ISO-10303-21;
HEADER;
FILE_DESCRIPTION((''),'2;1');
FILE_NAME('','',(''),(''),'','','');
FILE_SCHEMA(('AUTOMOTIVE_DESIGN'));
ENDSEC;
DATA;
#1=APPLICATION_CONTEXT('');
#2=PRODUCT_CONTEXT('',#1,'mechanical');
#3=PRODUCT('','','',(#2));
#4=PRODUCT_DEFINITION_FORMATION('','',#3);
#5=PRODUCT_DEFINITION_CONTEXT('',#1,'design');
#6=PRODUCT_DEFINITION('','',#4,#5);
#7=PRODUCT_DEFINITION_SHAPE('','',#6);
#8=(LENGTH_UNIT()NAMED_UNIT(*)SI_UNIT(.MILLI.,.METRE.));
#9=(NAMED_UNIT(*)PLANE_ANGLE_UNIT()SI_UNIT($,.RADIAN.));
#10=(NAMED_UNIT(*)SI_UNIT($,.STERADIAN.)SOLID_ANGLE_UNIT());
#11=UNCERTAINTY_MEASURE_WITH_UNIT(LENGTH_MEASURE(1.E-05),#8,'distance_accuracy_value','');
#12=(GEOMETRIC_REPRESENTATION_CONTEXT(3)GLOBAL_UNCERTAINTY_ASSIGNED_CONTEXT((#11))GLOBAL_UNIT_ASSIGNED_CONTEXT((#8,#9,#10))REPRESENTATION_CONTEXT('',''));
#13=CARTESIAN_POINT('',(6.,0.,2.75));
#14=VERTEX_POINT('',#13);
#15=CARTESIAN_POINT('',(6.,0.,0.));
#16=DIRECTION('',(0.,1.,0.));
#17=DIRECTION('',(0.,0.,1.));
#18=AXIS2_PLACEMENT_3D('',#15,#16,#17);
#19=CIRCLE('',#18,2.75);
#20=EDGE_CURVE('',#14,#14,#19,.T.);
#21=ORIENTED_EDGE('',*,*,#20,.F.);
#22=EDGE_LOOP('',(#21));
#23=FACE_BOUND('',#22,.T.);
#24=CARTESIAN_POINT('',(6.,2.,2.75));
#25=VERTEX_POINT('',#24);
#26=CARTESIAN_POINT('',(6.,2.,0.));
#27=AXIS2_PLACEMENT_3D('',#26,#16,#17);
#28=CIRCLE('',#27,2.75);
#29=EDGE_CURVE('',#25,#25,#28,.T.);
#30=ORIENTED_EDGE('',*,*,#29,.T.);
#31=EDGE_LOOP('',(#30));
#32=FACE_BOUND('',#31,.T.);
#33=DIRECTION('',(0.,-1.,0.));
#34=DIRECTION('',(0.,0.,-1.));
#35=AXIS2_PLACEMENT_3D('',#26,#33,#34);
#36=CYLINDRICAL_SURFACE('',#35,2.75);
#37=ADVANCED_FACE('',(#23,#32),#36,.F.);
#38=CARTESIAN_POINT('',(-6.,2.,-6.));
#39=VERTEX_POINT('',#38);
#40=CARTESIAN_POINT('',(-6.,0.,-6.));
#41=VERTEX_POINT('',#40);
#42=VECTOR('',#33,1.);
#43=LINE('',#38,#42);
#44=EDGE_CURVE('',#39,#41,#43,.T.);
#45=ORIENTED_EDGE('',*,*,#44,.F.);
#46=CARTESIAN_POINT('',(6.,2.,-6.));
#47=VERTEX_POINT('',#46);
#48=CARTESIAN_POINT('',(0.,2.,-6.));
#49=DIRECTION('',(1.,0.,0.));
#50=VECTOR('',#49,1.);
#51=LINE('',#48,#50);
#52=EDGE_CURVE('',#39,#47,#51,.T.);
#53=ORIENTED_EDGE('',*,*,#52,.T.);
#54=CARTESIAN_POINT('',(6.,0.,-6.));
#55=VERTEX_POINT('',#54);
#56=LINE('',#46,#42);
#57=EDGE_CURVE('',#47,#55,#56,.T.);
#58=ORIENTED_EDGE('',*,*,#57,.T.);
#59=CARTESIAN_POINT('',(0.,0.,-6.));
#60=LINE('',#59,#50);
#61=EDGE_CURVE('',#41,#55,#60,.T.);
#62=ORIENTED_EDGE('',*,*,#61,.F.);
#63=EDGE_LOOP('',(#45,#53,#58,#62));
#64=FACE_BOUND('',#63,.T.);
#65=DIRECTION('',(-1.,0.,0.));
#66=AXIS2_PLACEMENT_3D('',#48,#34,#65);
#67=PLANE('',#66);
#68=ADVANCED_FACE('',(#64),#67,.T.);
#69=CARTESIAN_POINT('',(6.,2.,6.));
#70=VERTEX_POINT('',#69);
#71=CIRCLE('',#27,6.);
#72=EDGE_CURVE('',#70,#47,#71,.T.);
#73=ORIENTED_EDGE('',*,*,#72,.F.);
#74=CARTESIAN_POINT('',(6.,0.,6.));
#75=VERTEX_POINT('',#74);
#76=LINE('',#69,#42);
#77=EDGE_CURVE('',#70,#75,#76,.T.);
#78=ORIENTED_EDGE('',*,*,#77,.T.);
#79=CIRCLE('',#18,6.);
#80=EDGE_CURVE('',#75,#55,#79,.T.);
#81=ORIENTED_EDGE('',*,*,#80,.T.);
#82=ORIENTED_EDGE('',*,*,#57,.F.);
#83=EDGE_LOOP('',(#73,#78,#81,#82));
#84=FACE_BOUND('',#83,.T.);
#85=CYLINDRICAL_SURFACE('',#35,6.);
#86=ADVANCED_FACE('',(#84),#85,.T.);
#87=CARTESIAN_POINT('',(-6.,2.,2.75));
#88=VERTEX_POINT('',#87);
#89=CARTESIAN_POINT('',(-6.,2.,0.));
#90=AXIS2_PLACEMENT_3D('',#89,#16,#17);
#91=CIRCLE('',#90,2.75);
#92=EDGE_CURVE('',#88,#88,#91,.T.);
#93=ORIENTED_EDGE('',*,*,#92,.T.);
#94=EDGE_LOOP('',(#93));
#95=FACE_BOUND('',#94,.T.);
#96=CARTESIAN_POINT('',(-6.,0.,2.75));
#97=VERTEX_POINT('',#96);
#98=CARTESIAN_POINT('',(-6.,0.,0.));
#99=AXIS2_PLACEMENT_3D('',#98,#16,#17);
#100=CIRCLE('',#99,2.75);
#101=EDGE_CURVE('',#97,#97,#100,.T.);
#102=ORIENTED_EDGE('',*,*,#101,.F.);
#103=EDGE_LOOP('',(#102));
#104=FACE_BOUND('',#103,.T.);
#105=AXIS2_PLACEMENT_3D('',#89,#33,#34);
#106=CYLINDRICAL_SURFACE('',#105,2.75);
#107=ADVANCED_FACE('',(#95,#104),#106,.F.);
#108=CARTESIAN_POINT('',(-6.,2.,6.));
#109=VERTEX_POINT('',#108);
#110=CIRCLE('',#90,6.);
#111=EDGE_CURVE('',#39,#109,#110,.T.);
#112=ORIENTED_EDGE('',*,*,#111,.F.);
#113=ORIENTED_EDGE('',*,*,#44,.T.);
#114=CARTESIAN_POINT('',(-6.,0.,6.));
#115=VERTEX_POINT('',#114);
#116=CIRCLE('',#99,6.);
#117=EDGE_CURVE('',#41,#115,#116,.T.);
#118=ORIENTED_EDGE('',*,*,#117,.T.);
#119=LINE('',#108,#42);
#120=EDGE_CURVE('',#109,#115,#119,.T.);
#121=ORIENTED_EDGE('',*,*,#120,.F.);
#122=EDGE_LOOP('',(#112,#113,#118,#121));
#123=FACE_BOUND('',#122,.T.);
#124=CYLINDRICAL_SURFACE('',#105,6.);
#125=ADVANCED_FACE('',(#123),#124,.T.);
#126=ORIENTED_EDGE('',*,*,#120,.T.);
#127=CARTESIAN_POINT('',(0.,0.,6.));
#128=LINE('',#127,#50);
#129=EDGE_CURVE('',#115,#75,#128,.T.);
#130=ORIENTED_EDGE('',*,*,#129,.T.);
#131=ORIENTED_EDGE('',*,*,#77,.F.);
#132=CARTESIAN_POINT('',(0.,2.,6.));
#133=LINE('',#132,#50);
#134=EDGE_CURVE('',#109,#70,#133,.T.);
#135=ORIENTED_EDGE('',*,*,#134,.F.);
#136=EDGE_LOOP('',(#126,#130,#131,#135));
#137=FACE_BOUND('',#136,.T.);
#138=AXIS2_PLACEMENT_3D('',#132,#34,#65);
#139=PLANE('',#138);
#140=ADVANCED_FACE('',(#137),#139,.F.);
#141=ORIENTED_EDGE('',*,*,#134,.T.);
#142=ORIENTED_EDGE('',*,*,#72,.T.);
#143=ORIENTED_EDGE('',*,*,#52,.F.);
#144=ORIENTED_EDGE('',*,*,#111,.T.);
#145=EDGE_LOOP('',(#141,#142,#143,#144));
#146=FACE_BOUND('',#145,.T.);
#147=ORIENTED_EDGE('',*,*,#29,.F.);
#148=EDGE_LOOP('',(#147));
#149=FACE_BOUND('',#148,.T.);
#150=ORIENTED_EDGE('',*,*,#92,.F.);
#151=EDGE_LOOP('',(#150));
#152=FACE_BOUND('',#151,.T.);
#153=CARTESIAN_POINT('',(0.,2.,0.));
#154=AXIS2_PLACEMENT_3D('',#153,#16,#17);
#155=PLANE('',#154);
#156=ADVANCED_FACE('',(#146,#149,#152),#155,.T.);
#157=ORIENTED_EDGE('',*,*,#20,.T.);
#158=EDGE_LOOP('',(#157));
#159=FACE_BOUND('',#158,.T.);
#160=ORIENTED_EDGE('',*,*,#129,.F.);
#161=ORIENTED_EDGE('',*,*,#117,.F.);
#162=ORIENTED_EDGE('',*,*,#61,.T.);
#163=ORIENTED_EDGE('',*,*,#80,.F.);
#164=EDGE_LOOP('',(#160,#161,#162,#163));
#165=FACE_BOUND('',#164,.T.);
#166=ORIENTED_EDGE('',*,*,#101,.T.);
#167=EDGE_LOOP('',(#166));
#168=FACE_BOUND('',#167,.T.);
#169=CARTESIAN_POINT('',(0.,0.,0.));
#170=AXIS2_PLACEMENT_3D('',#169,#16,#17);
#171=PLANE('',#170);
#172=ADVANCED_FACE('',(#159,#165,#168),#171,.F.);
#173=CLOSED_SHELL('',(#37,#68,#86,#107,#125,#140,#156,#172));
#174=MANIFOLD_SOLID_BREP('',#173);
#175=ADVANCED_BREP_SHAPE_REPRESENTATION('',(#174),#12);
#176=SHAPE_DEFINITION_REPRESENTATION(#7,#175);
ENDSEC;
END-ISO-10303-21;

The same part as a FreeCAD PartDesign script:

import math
import FreeCAD as App
import Part
import Sketcher

V = App.Vector
Q = App.Units.Quantity

doc = App.newDocument("Part")
body = doc.addObject("PartDesign::Body", "Body")

sketch1 = body.newObject("Sketcher::SketchObject", "Sketch")
sketch1.AttachmentSupport = (doc.getObject("XZ_Plane"), [""])
sketch1.MapMode = "FlatFace"
sketch1.addGeometry([
    Part.LineSegment(V(6, -6, 0), V(-6, -6, 0)),
    Part.ArcOfCircle(Part.Circle(V(-6, 0, 0), V(0, 0, 1), 6), math.radians(90), math.radians(270)),
    Part.LineSegment(V(-6, 6, 0), V(6, 6, 0)),
    Part.ArcOfCircle(Part.Circle(V(6, 0, 0), V(0, 0, 1), 6), math.radians(-90), math.radians(90)),
    Part.Circle(V(-6, 0, 0), V(0, 0, 1), 2.75),
    Part.Circle(V(6, 0, 0), V(0, 0, 1), 2.75),
], False)
sketch1.addConstraint([
    Sketcher.Constraint("Tangent", 0, 2, 1, 2),
    Sketcher.Constraint("Tangent", 1, 1, 2, 1),
    Sketcher.Constraint("Tangent", 2, 2, 3, 2),
    Sketcher.Constraint("Tangent", 3, 1, 0, 1),
    Sketcher.Constraint("Horizontal", 0),
    Sketcher.Constraint("Horizontal", 2),
    Sketcher.Constraint("Coincident", 4, 3, 1, 3),
    Sketcher.Constraint("Coincident", 5, 3, 3, 3),
    Sketcher.Constraint("Equal", 4, 5),
    Sketcher.Constraint("Symmetric", 1, 3, 3, 3, -1, 1),
    Sketcher.Constraint("Radius", 1, Q("6 mm")),
    Sketcher.Constraint("Diameter", 4, Q("5.5 mm")),
    Sketcher.Constraint("DistanceX", 0, 2, 0, 1, Q("12 mm")),
])
pad1 = body.newObject("PartDesign::Pad", "Pad")
pad1.Profile = sketch1
pad1.Length = 2
pad1.Reversed = True

doc.recompute()
